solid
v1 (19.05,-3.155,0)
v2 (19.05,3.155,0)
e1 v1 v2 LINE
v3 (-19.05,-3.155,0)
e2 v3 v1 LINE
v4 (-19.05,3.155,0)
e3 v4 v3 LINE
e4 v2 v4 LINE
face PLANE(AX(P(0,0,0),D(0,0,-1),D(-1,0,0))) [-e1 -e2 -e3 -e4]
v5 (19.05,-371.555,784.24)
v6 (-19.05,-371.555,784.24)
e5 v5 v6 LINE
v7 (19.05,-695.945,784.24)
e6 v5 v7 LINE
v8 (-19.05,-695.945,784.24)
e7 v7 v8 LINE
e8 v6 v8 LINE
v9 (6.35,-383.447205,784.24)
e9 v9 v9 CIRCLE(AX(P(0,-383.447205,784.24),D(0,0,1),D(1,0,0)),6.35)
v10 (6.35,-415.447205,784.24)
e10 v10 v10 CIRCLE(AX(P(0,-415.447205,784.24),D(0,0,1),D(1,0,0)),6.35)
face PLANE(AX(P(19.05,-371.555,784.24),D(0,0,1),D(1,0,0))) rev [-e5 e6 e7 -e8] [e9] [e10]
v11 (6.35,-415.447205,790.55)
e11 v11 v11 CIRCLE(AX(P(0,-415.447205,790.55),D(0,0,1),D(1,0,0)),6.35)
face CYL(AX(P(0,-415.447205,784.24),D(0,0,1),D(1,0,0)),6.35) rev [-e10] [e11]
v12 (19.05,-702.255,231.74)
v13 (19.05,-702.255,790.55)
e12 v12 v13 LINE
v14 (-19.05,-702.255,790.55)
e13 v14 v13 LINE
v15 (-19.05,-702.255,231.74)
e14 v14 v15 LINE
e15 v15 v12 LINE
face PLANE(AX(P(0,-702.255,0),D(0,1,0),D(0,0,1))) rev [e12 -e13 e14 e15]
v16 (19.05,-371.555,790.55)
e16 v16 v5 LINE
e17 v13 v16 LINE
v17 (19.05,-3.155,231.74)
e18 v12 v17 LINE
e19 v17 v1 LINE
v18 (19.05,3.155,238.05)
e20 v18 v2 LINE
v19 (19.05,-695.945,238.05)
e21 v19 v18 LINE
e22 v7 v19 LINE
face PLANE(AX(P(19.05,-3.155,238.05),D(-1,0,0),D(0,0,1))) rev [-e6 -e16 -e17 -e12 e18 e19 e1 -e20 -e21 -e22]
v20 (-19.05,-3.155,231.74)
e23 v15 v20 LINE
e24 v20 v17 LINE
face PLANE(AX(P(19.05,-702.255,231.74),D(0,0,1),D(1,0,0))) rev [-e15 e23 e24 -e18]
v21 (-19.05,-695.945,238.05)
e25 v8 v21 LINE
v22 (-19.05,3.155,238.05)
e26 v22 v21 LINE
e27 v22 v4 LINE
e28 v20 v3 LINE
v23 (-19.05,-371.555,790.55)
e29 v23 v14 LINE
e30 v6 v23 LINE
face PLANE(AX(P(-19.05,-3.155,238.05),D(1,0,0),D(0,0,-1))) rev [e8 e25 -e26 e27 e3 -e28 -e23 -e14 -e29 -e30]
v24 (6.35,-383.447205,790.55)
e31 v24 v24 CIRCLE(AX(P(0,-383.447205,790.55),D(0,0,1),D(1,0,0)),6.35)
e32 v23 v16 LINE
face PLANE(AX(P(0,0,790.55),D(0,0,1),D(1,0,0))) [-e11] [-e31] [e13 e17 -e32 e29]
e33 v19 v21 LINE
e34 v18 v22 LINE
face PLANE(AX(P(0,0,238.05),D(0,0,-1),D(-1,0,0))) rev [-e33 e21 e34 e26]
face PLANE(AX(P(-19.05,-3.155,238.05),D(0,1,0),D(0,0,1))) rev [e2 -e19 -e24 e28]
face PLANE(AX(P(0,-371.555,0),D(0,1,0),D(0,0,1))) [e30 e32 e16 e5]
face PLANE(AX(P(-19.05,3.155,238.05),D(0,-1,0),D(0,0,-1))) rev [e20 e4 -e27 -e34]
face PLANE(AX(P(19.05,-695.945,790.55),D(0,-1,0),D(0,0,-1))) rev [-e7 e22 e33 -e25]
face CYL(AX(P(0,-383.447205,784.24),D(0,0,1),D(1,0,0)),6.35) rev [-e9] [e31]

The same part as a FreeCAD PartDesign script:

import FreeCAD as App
import Part
import Sketcher
from FreeCAD import Vector

doc = App.newDocument("Part")
body = doc.addObject("PartDesign::Body", "Body")

# Sketch on XY plane
sketch1 = body.newObject("Sketcher::SketchObject", "Sketch")
sketch1.AttachmentSupport = (doc.getObject("XY_Plane"), [""])
sketch1.MapMode = "FlatFace"
sketch1.addGeometry([
    Part.LineSegment(Vector(-19, 3, 0), Vector(-19, -3, 0)),
    Part.LineSegment(Vector(-19, -3, 0), Vector(19, -3, 0)),
    Part.LineSegment(Vector(19, -3, 0), Vector(19, 3, 0)),
    Part.LineSegment(Vector(19, 3, 0), Vector(-19, 3, 0)),
], False)
sketch1.addConstraint([
    Sketcher.Constraint("Coincident", 0, 2, 1, 1),
    Sketcher.Constraint("Coincident", 1, 2, 2, 1),
    Sketcher.Constraint("Coincident", 2, 2, 3, 1),
    Sketcher.Constraint("Coincident", 3, 2, 0, 1),
    Sketcher.Constraint("Vertical", 0),
    Sketcher.Constraint("Horizontal", 1),
    Sketcher.Constraint("Vertical", 2),
    Sketcher.Constraint("Horizontal", 3),
    Sketcher.Constraint("Symmetric", 0, 2, 2, 2, -1, 1),
    Sketcher.Constraint("DistanceX", 1, 1, 1, 2, 38.1),
    Sketcher.Constraint("DistanceY", 0, 2, 0, 1, 6.31),
])
pad1 = body.newObject("PartDesign::Pad", "Pad")
pad1.Profile = sketch1
pad1.Length = 238.05

# Sketch on XZ plane
sketch2 = body.newObject("Sketcher::SketchObject", "Sketch001")
sketch2.AttachmentSupport = (doc.getObject("XZ_Plane"), [""])
sketch2.MapMode = "FlatFace"
sketch2.AttachmentOffset = App.Placement(Vector(0, 0, 3.155), App.Rotation())
sketch2.addGeometry([
    Part.LineSegment(Vector(-19, 238, 0), Vector(-19, 232, 0)),
    Part.LineSegment(Vector(-19, 232, 0), Vector(19, 232, 0)),
    Part.LineSegment(Vector(19, 232, 0), Vector(19, 238, 0)),
    Part.LineSegment(Vector(19, 238, 0), Vector(-19, 238, 0)),
], False)
sketch2.addConstraint([
    Sketcher.Constraint("Coincident", 0, 2, 1, 1),
    Sketcher.Constraint("Coincident", 1, 2, 2, 1),
    Sketcher.Constraint("Coincident", 2, 2, 3, 1),
    Sketcher.Constraint("Coincident", 3, 2, 0, 1),
    Sketcher.Constraint("Vertical", 0),
    Sketcher.Constraint("Horizontal", 1),
    Sketcher.Constraint("Vertical", 2),
    Sketcher.Constraint("Horizontal", 3),
    Sketcher.Constraint("DistanceX", 1, 1, 1, 2, 38.1),
    Sketcher.Constraint("DistanceY", 0, 2, 0, 1, 6.31),
    Sketcher.Constraint("DistanceX", 0, 2, -1, 1, 19.05),
    Sketcher.Constraint("DistanceY", -1, 1, 0, 2, 231.74),
])
pad2 = body.newObject("PartDesign::Pad", "Pad001")
pad2.Profile = sketch2
pad2.Length = 699.1

# Sketch on XY plane
sketch3 = body.newObject("Sketcher::SketchObject", "Sketch002")
sketch3.AttachmentSupport = (doc.getObject("XY_Plane"), [""])
sketch3.MapMode = "FlatFace"
sketch3.AttachmentOffset = App.Placement(Vector(0, 0, 238.05), App.Rotation())
sketch3.addGeometry([
    Part.LineSegment(Vector(-19, -696, 0), Vector(-19, -702, 0)),
    Part.LineSegment(Vector(-19, -702, 0), Vector(19, -702, 0)),
    Part.LineSegment(Vector(19, -702, 0), Vector(19, -696, 0)),
    Part.LineSegment(Vector(19, -696, 0), Vector(-19, -696, 0)),
], False)
sketch3.addConstraint([
    Sketcher.Constraint("Coincident", 0, 2, 1, 1),
    Sketcher.Constraint("Coincident", 1, 2, 2, 1),
    Sketcher.Constraint("Coincident", 2, 2, 3, 1),
    Sketcher.Constraint("Coincident", 3, 2, 0, 1),
    Sketcher.Constraint("Vertical", 0),
    Sketcher.Constraint("Horizontal", 1),
    Sketcher.Constraint("Vertical", 2),
    Sketcher.Constraint("Horizontal", 3),
    Sketcher.Constraint("DistanceX", 1, 1, 1, 2, 38.1),
    Sketcher.Constraint("DistanceY", 0, 2, 0, 1, 6.31),
    Sketcher.Constraint("DistanceX", 0, 2, -1, 1, 19.05),
    Sketcher.Constraint("DistanceY", 0, 2, -1, 1, 702.255),
])
pad3 = body.newObject("PartDesign::Pad", "Pad002")
pad3.Profile = sketch3
pad3.Length = 552.5

# Sketch on XZ plane
sketch4 = body.newObject("Sketcher::SketchObject", "Sketch003")
sketch4.AttachmentSupport = (doc.getObject("XZ_Plane"), [""])
sketch4.MapMode = "FlatFace"
sketch4.AttachmentOffset = App.Placement(Vector(0, 0, 695.945), App.Rotation())
sketch4.addGeometry([
    Part.LineSegment(Vector(-19, 784, 0), Vector(-19, 791, 0)),
    Part.LineSegment(Vector(-19, 791, 0), Vector(19, 791, 0)),
    Part.LineSegment(Vector(19, 791, 0), Vector(19, 784, 0)),
    Part.LineSegment(Vector(19, 784, 0), Vector(-19, 784, 0)),
], False)
sketch4.addConstraint([
    Sketcher.Constraint("Coincident", 0, 2, 1, 1),
    Sketcher.Constraint("Coincident", 1, 2, 2, 1),
    Sketcher.Constraint("Coincident", 2, 2, 3, 1),
    Sketcher.Constraint("Coincident", 3, 2, 0, 1),
    Sketcher.Constraint("Vertical", 0),
    Sketcher.Constraint("Horizontal", 1),
    Sketcher.Constraint("Vertical", 2),
    Sketcher.Constraint("Horizontal", 3),
    Sketcher.Constraint("DistanceX", 1, 1, 1, 2, 38.1),
    Sketcher.Constraint("DistanceY", 0, 1, 0, 2, 6.31),
    Sketcher.Constraint("DistanceX", 0, 2, -1, 1, 19.05),
    Sketcher.Constraint("DistanceY", -1, 1, 0, 2, 790.55),
])
pad4 = body.newObject("PartDesign::Pad", "Pad003")
pad4.Profile = sketch4
pad4.Length = 324.39
pad4.Reversed = True

# Sketch on XY plane
sketch5 = body.newObject("Sketcher::SketchObject", "Sketch004")
sketch5.AttachmentSupport = (doc.getObject("XY_Plane"), [""])
sketch5.MapMode = "FlatFace"
sketch5.AttachmentOffset = App.Placement(Vector(0, 0, 790.55), App.Rotation())
sketch5.addGeometry([
    Part.Circle(Vector(0, -383, 0), Vector(0, 0, 1), 6),
    Part.Circle(Vector(0, -415, 0), Vector(0, 0, 1), 6),
], False)
sketch5.addConstraint([
    Sketcher.Constraint("Equal", 0, 1),
    Sketcher.Constraint("PointOnObject", 0, 3, -2),
    Sketcher.Constraint("PointOnObject", 1, 3, -2),
    Sketcher.Constraint("Diameter", 0, 12.7),
    Sketcher.Constraint("DistanceY", 1, 3, 0, 3, 32.0),
    Sketcher.Constraint("DistanceY", 0, 3, -1, 1, 383.447205),
])
pocket1 = body.newObject("PartDesign::Pocket", "Pocket")
pocket1.Profile = sketch5
pocket1.Length = 6.31

doc.recompute()
